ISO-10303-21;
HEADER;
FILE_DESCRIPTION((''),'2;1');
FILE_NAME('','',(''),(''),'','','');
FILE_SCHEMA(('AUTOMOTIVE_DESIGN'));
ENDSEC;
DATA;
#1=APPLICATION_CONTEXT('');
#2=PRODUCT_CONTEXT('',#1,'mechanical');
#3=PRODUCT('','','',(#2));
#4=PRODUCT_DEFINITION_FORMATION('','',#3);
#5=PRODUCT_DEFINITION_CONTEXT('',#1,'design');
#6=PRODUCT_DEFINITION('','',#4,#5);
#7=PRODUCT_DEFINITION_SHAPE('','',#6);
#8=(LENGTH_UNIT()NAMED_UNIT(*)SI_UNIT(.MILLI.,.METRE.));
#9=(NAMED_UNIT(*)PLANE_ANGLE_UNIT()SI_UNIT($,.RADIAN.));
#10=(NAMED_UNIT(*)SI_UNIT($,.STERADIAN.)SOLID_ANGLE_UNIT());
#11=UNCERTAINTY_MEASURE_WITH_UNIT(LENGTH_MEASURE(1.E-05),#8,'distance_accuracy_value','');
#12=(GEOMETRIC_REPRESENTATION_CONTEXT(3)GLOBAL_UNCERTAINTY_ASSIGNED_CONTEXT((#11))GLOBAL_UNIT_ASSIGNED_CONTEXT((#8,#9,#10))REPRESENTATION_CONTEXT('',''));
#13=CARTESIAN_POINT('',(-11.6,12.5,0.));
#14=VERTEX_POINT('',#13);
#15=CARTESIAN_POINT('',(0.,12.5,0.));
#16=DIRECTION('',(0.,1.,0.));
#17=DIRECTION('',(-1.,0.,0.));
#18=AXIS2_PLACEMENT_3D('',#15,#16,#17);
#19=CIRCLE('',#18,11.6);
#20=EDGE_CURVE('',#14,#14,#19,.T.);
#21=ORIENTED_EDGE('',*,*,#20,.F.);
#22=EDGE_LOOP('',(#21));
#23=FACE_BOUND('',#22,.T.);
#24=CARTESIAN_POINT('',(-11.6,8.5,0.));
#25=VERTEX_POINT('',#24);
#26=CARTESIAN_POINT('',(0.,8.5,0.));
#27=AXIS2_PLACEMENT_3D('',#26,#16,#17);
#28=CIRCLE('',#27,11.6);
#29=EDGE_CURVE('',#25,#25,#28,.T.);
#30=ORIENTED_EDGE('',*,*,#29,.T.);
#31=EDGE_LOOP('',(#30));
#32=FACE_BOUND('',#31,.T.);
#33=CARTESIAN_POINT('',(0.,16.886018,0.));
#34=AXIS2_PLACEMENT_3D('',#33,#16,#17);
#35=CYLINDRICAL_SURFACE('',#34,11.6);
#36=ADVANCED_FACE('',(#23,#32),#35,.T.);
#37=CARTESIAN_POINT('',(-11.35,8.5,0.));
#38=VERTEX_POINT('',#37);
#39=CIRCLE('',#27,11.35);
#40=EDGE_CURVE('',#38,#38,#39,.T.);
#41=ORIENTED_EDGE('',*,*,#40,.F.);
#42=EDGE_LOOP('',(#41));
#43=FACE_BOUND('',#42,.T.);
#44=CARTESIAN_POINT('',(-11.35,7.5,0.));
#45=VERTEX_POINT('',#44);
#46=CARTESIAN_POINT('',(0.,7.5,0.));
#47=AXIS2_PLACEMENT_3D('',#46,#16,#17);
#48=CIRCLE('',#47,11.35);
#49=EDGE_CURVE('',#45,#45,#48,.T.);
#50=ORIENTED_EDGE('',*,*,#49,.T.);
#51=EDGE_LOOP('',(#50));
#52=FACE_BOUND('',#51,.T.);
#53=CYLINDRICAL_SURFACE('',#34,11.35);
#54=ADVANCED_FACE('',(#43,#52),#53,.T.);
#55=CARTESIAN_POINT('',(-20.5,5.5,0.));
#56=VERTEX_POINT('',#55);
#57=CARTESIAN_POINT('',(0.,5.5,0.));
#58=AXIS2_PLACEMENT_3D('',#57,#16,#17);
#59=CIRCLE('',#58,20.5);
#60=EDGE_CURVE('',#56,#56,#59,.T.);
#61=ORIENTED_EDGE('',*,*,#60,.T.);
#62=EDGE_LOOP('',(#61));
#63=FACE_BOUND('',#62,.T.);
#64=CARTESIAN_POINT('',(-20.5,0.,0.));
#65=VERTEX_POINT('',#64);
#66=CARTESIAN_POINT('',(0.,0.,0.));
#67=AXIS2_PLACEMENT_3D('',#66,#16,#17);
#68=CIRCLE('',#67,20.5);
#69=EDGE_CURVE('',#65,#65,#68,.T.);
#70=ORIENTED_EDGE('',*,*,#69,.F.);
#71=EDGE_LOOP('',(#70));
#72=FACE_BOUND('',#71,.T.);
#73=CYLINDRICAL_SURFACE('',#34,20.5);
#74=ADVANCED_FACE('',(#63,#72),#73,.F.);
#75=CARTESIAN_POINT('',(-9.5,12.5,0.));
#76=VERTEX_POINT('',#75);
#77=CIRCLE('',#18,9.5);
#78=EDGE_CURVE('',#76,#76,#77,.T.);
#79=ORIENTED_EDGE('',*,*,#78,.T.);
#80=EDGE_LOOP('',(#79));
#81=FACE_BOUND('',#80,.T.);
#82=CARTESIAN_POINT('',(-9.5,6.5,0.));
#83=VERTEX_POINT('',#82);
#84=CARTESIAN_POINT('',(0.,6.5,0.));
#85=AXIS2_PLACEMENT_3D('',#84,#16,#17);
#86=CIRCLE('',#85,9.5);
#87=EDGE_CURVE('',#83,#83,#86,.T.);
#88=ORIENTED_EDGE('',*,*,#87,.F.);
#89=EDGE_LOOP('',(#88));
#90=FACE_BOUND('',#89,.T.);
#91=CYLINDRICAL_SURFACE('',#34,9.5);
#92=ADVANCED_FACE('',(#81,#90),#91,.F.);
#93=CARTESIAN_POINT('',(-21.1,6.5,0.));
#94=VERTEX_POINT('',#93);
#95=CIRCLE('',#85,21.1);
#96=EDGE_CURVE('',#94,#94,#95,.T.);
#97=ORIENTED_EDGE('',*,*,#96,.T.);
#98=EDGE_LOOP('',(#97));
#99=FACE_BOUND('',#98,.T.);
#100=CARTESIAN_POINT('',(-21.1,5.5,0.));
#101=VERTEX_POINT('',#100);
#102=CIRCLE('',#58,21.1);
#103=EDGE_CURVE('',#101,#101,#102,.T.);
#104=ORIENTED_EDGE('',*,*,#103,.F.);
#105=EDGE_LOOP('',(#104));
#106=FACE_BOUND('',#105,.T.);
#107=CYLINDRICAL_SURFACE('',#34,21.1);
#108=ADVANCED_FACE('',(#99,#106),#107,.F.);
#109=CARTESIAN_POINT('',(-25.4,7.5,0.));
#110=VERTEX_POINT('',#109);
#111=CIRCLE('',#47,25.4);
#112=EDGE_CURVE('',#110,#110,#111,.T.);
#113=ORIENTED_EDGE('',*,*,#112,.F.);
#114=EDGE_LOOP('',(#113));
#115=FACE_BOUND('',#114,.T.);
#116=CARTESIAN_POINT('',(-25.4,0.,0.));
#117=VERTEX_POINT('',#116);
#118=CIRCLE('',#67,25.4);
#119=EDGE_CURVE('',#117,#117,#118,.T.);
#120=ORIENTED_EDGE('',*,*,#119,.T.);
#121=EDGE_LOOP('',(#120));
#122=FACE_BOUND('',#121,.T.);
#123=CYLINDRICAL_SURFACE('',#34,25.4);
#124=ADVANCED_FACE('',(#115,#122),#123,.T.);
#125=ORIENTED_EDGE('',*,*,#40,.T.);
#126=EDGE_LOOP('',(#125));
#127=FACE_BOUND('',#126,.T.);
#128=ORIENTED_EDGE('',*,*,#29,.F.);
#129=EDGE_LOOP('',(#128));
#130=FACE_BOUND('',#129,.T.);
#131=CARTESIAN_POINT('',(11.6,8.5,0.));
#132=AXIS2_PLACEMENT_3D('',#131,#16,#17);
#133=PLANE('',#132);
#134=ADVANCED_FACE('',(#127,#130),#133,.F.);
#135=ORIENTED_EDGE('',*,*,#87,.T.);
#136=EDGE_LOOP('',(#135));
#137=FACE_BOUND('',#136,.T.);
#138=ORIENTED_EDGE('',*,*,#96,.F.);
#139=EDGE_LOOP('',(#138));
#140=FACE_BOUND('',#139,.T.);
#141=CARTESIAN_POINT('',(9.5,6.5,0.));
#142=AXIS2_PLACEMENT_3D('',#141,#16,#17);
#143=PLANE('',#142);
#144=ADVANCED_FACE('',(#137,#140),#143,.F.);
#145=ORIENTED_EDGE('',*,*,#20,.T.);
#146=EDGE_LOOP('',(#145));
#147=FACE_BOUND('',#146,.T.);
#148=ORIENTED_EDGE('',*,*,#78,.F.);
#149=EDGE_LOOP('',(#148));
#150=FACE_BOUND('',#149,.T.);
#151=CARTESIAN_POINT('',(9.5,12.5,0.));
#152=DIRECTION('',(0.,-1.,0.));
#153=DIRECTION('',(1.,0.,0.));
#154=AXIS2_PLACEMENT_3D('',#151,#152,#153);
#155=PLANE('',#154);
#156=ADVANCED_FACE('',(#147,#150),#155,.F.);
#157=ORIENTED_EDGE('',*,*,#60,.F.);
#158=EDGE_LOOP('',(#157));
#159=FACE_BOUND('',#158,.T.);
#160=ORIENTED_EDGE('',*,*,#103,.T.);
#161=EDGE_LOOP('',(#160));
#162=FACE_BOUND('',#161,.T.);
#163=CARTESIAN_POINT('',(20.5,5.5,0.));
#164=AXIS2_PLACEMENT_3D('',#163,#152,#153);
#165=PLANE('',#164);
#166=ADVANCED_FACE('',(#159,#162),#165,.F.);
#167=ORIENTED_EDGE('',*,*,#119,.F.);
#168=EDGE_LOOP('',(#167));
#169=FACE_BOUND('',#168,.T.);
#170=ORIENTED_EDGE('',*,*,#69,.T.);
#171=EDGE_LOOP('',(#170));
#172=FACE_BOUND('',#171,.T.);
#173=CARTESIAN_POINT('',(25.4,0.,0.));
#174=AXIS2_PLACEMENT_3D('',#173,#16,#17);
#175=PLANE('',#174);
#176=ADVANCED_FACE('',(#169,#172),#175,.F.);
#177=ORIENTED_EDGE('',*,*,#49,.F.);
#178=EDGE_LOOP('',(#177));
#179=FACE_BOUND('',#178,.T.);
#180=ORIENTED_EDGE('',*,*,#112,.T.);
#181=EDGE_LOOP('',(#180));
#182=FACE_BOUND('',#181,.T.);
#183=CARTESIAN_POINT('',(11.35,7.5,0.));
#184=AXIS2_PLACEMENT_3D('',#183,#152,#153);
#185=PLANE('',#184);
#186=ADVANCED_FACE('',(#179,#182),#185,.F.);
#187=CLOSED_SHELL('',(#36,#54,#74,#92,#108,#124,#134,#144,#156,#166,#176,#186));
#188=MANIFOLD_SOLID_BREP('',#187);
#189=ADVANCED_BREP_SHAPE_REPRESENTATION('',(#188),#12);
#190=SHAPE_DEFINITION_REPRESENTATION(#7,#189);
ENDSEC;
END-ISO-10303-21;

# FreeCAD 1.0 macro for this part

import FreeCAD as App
import Part
import Sketcher

V = App.Vector
Q = App.Units.Quantity

doc = App.newDocument("Part")
body = doc.addObject("PartDesign::Body", "Body")

# Sketch on XY plane
sketch1 = doc.addObject("Sketcher::SketchObject", "Sketch")
body.addObject(sketch1)
sketch1.AttachmentSupport = (doc.XY_Plane, [""])
sketch1.MapMode = "FlatFace"
sketch1.addGeometry(Part.LineSegment(V(20.5, 5.5, 0), V(20.5, 0, 0)), False)
sketch1.addGeometry(Part.LineSegment(V(20.5, 0, 0), V(25.4, 0, 0)), False)
sketch1.addGeometry(Part.LineSegment(V(25.4, 0, 0), V(25.4, 7.5, 0)), False)
sketch1.addGeometry(Part.LineSegment(V(25.4, 7.5, 0), V(11.35, 7.5, 0)), False)
sketch1.addGeometry(Part.LineSegment(V(11.35, 7.5, 0), V(11.35, 8.5, 0)), False)
sketch1.addGeometry(Part.LineSegment(V(11.35, 8.5, 0), V(11.6, 8.5, 0)), False)
sketch1.addGeometry(Part.LineSegment(V(11.6, 8.5, 0), V(11.6, 12.5, 0)), False)
sketch1.addGeometry(Part.LineSegment(V(11.6, 12.5, 0), V(9.5, 12.5, 0)), False)
sketch1.addGeometry(Part.LineSegment(V(9.5, 12.5, 0), V(9.5, 6.5, 0)), False)
sketch1.addGeometry(Part.LineSegment(V(9.5, 6.5, 0), V(21.1, 6.5, 0)), False)
sketch1.addGeometry(Part.LineSegment(V(21.1, 6.5, 0), V(21.1, 5.5, 0)), False)
sketch1.addGeometry(Part.LineSegment(V(21.1, 5.5, 0), V(20.5, 5.5, 0)), False)
sketch1.addConstraint(Sketcher.Constraint("Coincident", 0, 2, 1, 1))
sketch1.addConstraint(Sketcher.Constraint("Coincident", 1, 2, 2, 1))
sketch1.addConstraint(Sketcher.Constraint("Coincident", 2, 2, 3, 1))
sketch1.addConstraint(Sketcher.Constraint("Coincident", 3, 2, 4, 1))
sketch1.addConstraint(Sketcher.Constraint("Coincident", 4, 2, 5, 1))
sketch1.addConstraint(Sketcher.Constraint("Coincident", 5, 2, 6, 1))
sketch1.addConstraint(Sketcher.Constraint("Coincident", 6, 2, 7, 1))
sketch1.addConstraint(Sketcher.Constraint("Coincident", 7, 2, 8, 1))
sketch1.addConstraint(Sketcher.Constraint("Coincident", 8, 2, 9, 1))
sketch1.addConstraint(Sketcher.Constraint("Coincident", 9, 2, 10, 1))
sketch1.addConstraint(Sketcher.Constraint("Coincident", 10, 2, 11, 1))
sketch1.addConstraint(Sketcher.Constraint("Coincident", 11, 2, 0, 1))
sketch1.addConstraint(Sketcher.Constraint("Vertical", 0))
sketch1.addConstraint(Sketcher.Constraint("Horizontal", 1))
sketch1.addConstraint(Sketcher.Constraint("Vertical", 2))
sketch1.addConstraint(Sketcher.Constraint("Horizontal", 3))
sketch1.addConstraint(Sketcher.Constraint("Vertical", 4))
sketch1.addConstraint(Sketcher.Constraint("Horizontal", 5))
sketch1.addConstraint(Sketcher.Constraint("Vertical", 6))
sketch1.addConstraint(Sketcher.Constraint("Horizontal", 7))
sketch1.addConstraint(Sketcher.Constraint("Vertical", 8))
sketch1.addConstraint(Sketcher.Constraint("Horizontal", 9))
sketch1.addConstraint(Sketcher.Constraint("Vertical", 10))
sketch1.addConstraint(Sketcher.Constraint("Horizontal", 11))
sketch1.addConstraint(Sketcher.Constraint("PointOnObject", 0, 2, -1))
sketch1.addConstraint(Sketcher.Constraint("Equal", 4, 10))
sketch1.addConstraint(Sketcher.Constraint("DistanceY", 4, 1, 4, 2, Q("1 mm")))
sketch1.addConstraint(Sketcher.Constraint("DistanceY", 6, 1, 6, 2, Q("4 mm")))
sketch1.addConstraint(Sketcher.Constraint("DistanceY", 8, 2, 8, 1, Q("6 mm")))
sketch1.addConstraint(Sketcher.Constraint("DistanceX", 1, 1, 1, 2, Q("4.9 mm")))
sketch1.addConstraint(Sketcher.Constraint("DistanceX", 7, 2, 7, 1, Q("2.1 mm")))
sketch1.addConstraint(Sketcher.Constraint("DistanceX", 9, 1, 9, 2, Q("11.6 mm")))
sketch1.addConstraint(Sketcher.Constraint("DistanceX", 11, 2, 11, 1, Q("0.6 mm")))
sketch1.addConstraint(Sketcher.Constraint("DistanceY", 0, 2, 0, 1, Q("5.5 mm")))
sketch1.addConstraint(Sketcher.Constraint("DistanceX", 3, 2, 3, 1, Q("14.05 mm")))
sketch1.addConstraint(Sketcher.Constraint("DistanceX", -1, 1, 0, 2, Q("20.5 mm")))
revolution = doc.addObject("PartDesign::Revolution", "Revolution")
body.addObject(revolution)
revolution.Profile = sketch1
revolution.ReferenceAxis = (sketch1, ["V_Axis"])
revolution.Angle = 360

doc.recompute()
